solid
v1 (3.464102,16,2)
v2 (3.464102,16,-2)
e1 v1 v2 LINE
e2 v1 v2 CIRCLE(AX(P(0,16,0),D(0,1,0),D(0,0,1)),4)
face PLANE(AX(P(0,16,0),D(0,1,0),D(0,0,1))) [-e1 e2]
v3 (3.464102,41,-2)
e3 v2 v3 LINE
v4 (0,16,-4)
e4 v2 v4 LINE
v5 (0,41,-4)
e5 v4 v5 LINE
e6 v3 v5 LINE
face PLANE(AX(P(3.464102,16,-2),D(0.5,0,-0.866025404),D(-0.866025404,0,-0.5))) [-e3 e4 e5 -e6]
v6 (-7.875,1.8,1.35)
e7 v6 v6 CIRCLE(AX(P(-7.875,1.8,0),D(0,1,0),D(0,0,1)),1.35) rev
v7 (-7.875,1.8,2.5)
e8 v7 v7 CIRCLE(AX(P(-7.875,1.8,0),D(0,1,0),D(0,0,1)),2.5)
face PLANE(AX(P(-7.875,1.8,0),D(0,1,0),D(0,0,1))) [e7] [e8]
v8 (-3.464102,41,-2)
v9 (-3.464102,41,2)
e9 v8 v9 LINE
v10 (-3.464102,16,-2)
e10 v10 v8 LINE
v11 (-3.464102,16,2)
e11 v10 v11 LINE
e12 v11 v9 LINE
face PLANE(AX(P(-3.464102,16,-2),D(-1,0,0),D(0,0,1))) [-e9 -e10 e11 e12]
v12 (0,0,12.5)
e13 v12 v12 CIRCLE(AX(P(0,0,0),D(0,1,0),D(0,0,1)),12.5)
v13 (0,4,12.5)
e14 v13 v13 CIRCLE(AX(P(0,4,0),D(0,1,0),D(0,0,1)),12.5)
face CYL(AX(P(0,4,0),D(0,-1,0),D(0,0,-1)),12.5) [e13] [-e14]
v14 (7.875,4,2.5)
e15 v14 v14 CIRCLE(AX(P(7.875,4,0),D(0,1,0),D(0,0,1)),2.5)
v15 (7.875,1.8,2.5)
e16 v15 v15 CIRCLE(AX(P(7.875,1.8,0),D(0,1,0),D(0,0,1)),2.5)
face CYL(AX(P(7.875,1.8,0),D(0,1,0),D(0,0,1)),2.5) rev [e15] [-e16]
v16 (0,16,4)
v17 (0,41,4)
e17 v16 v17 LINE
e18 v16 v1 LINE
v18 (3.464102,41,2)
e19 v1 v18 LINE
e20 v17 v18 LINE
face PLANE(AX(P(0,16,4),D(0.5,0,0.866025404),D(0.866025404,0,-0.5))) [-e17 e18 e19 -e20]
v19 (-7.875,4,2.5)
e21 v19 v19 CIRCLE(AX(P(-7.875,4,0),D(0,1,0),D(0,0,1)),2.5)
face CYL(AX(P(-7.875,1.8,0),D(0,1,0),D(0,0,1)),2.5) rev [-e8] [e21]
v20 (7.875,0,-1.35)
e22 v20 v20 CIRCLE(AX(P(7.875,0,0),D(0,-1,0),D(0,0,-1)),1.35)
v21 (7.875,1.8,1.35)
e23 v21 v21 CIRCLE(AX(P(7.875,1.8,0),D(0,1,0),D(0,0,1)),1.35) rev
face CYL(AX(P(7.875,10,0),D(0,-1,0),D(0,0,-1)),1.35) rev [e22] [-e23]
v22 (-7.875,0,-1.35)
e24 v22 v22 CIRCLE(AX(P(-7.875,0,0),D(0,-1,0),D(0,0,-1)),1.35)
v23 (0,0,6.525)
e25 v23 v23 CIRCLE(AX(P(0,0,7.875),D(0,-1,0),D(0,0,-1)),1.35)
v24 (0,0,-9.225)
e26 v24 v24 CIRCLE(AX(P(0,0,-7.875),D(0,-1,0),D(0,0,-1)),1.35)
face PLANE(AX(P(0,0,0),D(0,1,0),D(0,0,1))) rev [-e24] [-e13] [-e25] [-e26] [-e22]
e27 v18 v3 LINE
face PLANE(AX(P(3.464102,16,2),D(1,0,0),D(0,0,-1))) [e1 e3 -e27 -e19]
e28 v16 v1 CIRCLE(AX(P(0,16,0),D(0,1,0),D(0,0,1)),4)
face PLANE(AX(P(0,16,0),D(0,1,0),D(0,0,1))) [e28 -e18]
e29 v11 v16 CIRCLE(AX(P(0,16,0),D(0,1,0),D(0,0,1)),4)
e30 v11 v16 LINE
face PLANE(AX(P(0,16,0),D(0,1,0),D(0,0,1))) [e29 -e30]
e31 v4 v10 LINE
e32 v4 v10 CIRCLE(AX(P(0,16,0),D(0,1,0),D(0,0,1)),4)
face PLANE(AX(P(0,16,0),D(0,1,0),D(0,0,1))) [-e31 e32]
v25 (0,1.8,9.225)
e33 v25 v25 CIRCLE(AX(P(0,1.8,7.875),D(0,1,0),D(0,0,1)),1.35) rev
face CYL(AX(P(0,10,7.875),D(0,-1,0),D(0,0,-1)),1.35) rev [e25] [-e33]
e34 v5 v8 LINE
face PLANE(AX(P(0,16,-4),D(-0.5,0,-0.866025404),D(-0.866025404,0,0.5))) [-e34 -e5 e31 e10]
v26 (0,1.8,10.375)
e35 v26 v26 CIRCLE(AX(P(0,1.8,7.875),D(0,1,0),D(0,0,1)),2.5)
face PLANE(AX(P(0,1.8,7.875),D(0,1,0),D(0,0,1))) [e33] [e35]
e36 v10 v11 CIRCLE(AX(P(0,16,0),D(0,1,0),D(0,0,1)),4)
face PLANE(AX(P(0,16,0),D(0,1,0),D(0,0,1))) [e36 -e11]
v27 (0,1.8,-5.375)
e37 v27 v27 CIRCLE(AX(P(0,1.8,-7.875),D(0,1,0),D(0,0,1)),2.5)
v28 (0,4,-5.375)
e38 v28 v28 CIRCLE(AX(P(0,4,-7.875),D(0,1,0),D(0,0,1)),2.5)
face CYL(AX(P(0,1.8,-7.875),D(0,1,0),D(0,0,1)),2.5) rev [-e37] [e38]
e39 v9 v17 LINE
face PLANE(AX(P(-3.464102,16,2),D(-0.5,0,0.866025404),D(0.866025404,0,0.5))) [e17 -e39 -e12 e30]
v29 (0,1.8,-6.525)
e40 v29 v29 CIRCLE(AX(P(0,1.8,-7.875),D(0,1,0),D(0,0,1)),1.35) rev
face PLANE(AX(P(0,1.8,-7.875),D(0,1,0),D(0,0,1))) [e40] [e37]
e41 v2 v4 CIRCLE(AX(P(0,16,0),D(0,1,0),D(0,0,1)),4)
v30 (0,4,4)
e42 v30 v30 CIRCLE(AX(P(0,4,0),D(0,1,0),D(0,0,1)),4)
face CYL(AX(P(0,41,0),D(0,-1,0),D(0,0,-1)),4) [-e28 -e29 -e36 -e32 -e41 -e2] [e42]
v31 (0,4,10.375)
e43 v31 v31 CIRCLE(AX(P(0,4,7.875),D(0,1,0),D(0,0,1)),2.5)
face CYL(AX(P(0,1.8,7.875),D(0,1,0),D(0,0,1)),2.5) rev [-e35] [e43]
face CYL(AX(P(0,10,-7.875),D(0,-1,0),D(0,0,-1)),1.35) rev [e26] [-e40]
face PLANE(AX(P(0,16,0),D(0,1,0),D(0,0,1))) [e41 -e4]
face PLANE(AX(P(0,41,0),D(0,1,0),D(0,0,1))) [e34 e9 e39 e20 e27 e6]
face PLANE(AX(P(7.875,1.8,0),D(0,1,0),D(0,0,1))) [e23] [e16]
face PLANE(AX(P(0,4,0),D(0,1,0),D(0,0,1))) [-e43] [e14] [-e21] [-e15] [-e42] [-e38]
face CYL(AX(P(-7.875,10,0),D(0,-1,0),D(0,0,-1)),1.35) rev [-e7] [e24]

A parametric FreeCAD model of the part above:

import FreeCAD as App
import Part
import Sketcher
Q = App.Units.Quantity

doc = App.newDocument("Part")
body = doc.addObject("PartDesign::Body", "Body")

sketch1 = doc.addObject("Sketcher::SketchObject", "Sketch")
body.addObject(sketch1)
sketch1.AttachmentSupport = (doc.XZ_Plane, [""])
sketch1.MapMode = "FlatFace"
sketch1.addGeometry(Part.Circle(App.Vector(0, 0, 0), App.Vector(0, 0, 1), 12), False)
sketch1.addConstraint([
    Sketcher.Constraint("Coincident", 0, 3, -1, 1),
    Sketcher.Constraint("Diameter", 0, Q("25 mm")),
])
pad1 = doc.addObject("PartDesign::Pad", "Pad")
body.addObject(pad1)
pad1.Profile = sketch1
pad1.Length = 4
pad1.Reversed = True

sketch2 = doc.addObject("Sketcher::SketchObject", "Sketch001")
body.addObject(sketch2)
sketch2.AttachmentSupport = (doc.XZ_Plane, [""])
sketch2.MapMode = "FlatFace"
sketch2.AttachmentOffset = App.Placement(App.Vector(0, 0, -4), App.Rotation())
sketch2.addGeometry(Part.Circle(App.Vector(0, 0, 0), App.Vector(0, 0, 1), 4), False)
sketch2.addConstraint([
    Sketcher.Constraint("Coincident", 0, 3, -1, 1),
    Sketcher.Constraint("Diameter", 0, Q("8 mm")),
])
pad2 = doc.addObject("PartDesign::Pad", "Pad001")
body.addObject(pad2)
pad2.Profile = sketch2
pad2.Length = 37
pad2.Reversed = True

sketch3 = doc.addObject("Sketcher::SketchObject", "Sketch002")
body.addObject(sketch3)
sketch3.AttachmentSupport = (doc.XZ_Plane, [""])
sketch3.MapMode = "FlatFace"
sketch3.AttachmentOffset = App.Placement(App.Vector(0, 0, -41), App.Rotation())
sketch3.addGeometry([
    Part.LineSegment(App.Vector(-18.9, -18.9, 0), App.Vector(-18.9, 18.9, 0)),
    Part.LineSegment(App.Vector(-18.9, 18.9, 0), App.Vector(18.9, 18.9, 0)),
    Part.LineSegment(App.Vector(18.9, 18.9, 0), App.Vector(18.9, -18.9, 0)),
    Part.LineSegment(App.Vector(18.9, -18.9, 0), App.Vector(-18.9, -18.9, 0)),
    Part.LineSegment(App.Vector(-3.5, -2, 0), App.Vector(0, -4, 0)),
    Part.LineSegment(App.Vector(0, -4, 0), App.Vector(3.5, -2, 0)),
    Part.LineSegment(App.Vector(3.5, -2, 0), App.Vector(3.5, 2, 0)),
    Part.LineSegment(App.Vector(3.5, 2, 0), App.Vector(0, 4, 0)),
    Part.LineSegment(App.Vector(0, 4, 0), App.Vector(-3.5, 2, 0)),
    Part.LineSegment(App.Vector(-3.5, 2, 0), App.Vector(-3.5, -2, 0)),
], False)
sketch3.addConstraint([
    Sketcher.Constraint("Coincident", 0, 2, 1, 1),
    Sketcher.Constraint("Coincident", 1, 2, 2, 1),
    Sketcher.Constraint("Coincident", 2, 2, 3, 1),
    Sketcher.Constraint("Coincident", 3, 2, 0, 1),
    Sketcher.Constraint("Coincident", 4, 2, 5, 1),
    Sketcher.Constraint("Coincident", 5, 2, 6, 1),
    Sketcher.Constraint("Coincident", 6, 2, 7, 1),
    Sketcher.Constraint("Coincident", 7, 2, 8, 1),
    Sketcher.Constraint("Coincident", 8, 2, 9, 1),
    Sketcher.Constraint("Coincident", 9, 2, 4, 1),
    Sketcher.Constraint("Vertical", 0),
    Sketcher.Constraint("Horizontal", 1),
    Sketcher.Constraint("Vertical", 2),
    Sketcher.Constraint("Horizontal", 3),
    Sketcher.Constraint("Vertical", 6),
    Sketcher.Constraint("Vertical", 9),
    Sketcher.Constraint("Symmetric", 0, 2, 2, 2, -1, 1),
    Sketcher.Constraint("Symmetric", 4, 2, 7, 2, -1, 1),
    Sketcher.Constraint("Symmetric", 5, 2, 8, 2, -1, 1),
    Sketcher.Constraint("PointOnObject", 4, 2, -2),
    Sketcher.Constraint("Parallel", 4, 7),
    Sketcher.Constraint("Horizontal", 6, 2, 8, 2),
    Sketcher.Constraint("Equal", 3, 0),
    Sketcher.Constraint("DistanceY", 6, 1, 6, 2, Q("4 mm")),
    Sketcher.Constraint("Angle", 4, Q("-30 deg")),
    Sketcher.Constraint("Distance", 4, Q("4 mm")),
    Sketcher.Constraint("DistanceX", 1, 1, 1, 2, Q("37.828 mm")),
])
pocket1 = doc.addObject("PartDesign::Pocket", "Pocket")
body.addObject(pocket1)
pocket1.Profile = sketch3
pocket1.Length = 25
pocket1.Reversed = True

sketch4 = doc.addObject("Sketcher::SketchObject", "Sketch003")
body.addObject(sketch4)
sketch4.AttachmentSupport = (doc.XZ_Plane, [""])
sketch4.MapMode = "FlatFace"
sketch4.addGeometry([
    Part.Circle(App.Vector(0, 7.9, 0), App.Vector(0, 0, 1), 1.4),
    Part.Circle(App.Vector(7.9, 0, 0), App.Vector(0, 0, 1), 1.4),
    Part.Circle(App.Vector(0, -7.9, 0), App.Vector(0, 0, 1), 1.4),
    Part.Circle(App.Vector(-7.9, 0, 0), App.Vector(0, 0, 1), 1.4),
], False)
sketch4.addConstraint([
    Sketcher.Constraint("Equal", 0, 1),
    Sketcher.Constraint("Equal", 1, 2),
    Sketcher.Constraint("Equal", 2, 3),
    Sketcher.Constraint("Symmetric", 0, 3, 2, 3, -1, 1),
    Sketcher.Constraint("Symmetric", 1, 3, 3, 3, -1, 1),
    Sketcher.Constraint("PointOnObject", 0, 3, -2),
    Sketcher.Constraint("PointOnObject", 1, 3, -1),
    Sketcher.Constraint("Diameter", 0, Q("2.7 mm")),
    Sketcher.Constraint("DistanceY", 2, 3, 0, 3, Q("15.75 mm")),
    Sketcher.Constraint("DistanceX", 3, 3, 1, 3, Q("15.75 mm")),
])
pocket2 = doc.addObject("PartDesign::Pocket", "Pocket001")
body.addObject(pocket2)
pocket2.Profile = sketch4
pocket2.Length = 10

sketch5 = doc.addObject("Sketcher::SketchObject", "Sketch004")
body.addObject(sketch5)
sketch5.AttachmentSupport = (doc.XZ_Plane, [""])
sketch5.MapMode = "FlatFace"
sketch5.AttachmentOffset = App.Placement(App.Vector(0, 0, -4), App.Rotation())
sketch5.addGeometry([
    Part.Circle(App.Vector(0, -7.9, 0), App.Vector(0, 0, 1), 2.5),
    Part.Circle(App.Vector(7.9, 0, 0), App.Vector(0, 0, 1), 2.5),
    Part.Circle(App.Vector(0, 7.9, 0), App.Vector(0, 0, 1), 2.5),
    Part.Circle(App.Vector(-7.9, 0, 0), App.Vector(0, 0, 1), 2.5),
], False)
sketch5.addConstraint([
    Sketcher.Constraint("Equal", 0, 1),
    Sketcher.Constraint("Equal", 1, 2),
    Sketcher.Constraint("Equal", 2, 3),
    Sketcher.Constraint("Symmetric", 0, 3, 2, 3, -1, 1),
    Sketcher.Constraint("Symmetric", 1, 3, 3, 3, -1, 1),
    Sketcher.Constraint("PointOnObject", 0, 3, -2),
    Sketcher.Constraint("PointOnObject", 1, 3, -1),
    Sketcher.Constraint("Diameter", 0, Q("5 mm")),
    Sketcher.Constraint("DistanceY", 0, 3, 2, 3, Q("15.75 mm")),
    Sketcher.Constraint("DistanceX", 3, 3, 1, 3, Q("15.75 mm")),
])
pocket3 = doc.addObject("PartDesign::Pocket", "Pocket002")
body.addObject(pocket3)
pocket3.Profile = sketch5
pocket3.Length = 2.2
pocket3.Reversed = True

doc.recompute()
